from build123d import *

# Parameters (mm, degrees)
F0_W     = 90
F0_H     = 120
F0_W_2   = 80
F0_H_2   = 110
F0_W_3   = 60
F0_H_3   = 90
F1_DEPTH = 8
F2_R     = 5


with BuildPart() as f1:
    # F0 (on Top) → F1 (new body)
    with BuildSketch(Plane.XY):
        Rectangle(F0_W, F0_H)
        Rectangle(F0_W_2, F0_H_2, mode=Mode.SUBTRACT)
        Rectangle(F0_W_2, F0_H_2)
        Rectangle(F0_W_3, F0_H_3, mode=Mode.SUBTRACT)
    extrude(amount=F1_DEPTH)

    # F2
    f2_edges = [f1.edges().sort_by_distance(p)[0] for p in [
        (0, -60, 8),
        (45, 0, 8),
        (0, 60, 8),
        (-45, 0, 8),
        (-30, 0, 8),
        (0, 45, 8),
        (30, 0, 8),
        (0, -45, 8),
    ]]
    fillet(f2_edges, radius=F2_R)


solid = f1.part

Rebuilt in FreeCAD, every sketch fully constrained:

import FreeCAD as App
import Part
import Sketcher


def edges_at(feature, points):
    """Names of the edges that pass closest to the given points."""
    edges = feature.Shape.Edges
    near = lambda p: min(range(len(edges)), key=lambda i: edges[i].distToShape(Part.Vertex(*p))[0])
    return sorted({f"Edge{near(p) + 1}" for p in points})

doc = App.newDocument("Part")
body = doc.addObject("PartDesign::Body", "Body")

# Sketch on XY plane
sketch1 = body.newObject("Sketcher::SketchObject", "Sketch")
sketch1.AttachmentSupport = (doc.getObject("XY_Plane"), [""])
sketch1.MapMode = "FlatFace"
sketch1.addGeometry(Part.LineSegment(App.Vector(-45, 60, 0), App.Vector(-45, -60, 0)), False)
sketch1.addGeometry(Part.LineSegment(App.Vector(-45, -60, 0), App.Vector(45, -60, 0)), False)
sketch1.addGeometry(Part.LineSegment(App.Vector(45, -60, 0), App.Vector(45, 60, 0)), False)
sketch1.addGeometry(Part.LineSegment(App.Vector(45, 60, 0), App.Vector(-45, 60, 0)), False)
sketch1.addGeometry(Part.LineSegment(App.Vector(30, -45, 0), App.Vector(-30, -45, 0)), False)
sketch1.addGeometry(Part.LineSegment(App.Vector(-30, -45, 0), App.Vector(-30, 45, 0)), False)
sketch1.addGeometry(Part.LineSegment(App.Vector(-30, 45, 0), App.Vector(30, 45, 0)), False)
sketch1.addGeometry(Part.LineSegment(App.Vector(30, 45, 0), App.Vector(30, -45, 0)), False)
sketch1.addConstraint(Sketcher.Constraint("Coincident", 0, 2, 1, 1))
sketch1.addConstraint(Sketcher.Constraint("Coincident", 1, 2, 2, 1))
sketch1.addConstraint(Sketcher.Constraint("Coincident", 2, 2, 3, 1))
sketch1.addConstraint(Sketcher.Constraint("Coincident", 3, 2, 0, 1))
sketch1.addConstraint(Sketcher.Constraint("Coincident", 4, 2, 5, 1))
sketch1.addConstraint(Sketcher.Constraint("Coincident", 5, 2, 6, 1))
sketch1.addConstraint(Sketcher.Constraint("Coincident", 6, 2, 7, 1))
sketch1.addConstraint(Sketcher.Constraint("Coincident", 7, 2, 4, 1))
sketch1.addConstraint(Sketcher.Constraint("Vertical", 0))
sketch1.addConstraint(Sketcher.Constraint("Horizontal", 1))
sketch1.addConstraint(Sketcher.Constraint("Vertical", 2))
sketch1.addConstraint(Sketcher.Constraint("Horizontal", 3))
sketch1.addConstraint(Sketcher.Constraint("Horizontal", 4))
sketch1.addConstraint(Sketcher.Constraint("Vertical", 5))
sketch1.addConstraint(Sketcher.Constraint("Horizontal", 6))
sketch1.addConstraint(Sketcher.Constraint("Vertical", 7))
sketch1.addConstraint(Sketcher.Constraint("Symmetric", 0, 2, 2, 2, -1, 1))
sketch1.addConstraint(Sketcher.Constraint("Symmetric", 4, 2, 6, 2, -1, 1))
sketch1.addConstraint(Sketcher.Constraint("Equal", 3, 5))
sketch1.addConstraint(Sketcher.Constraint("DistanceX", 1, 1, 1, 2, 90.0))
sketch1.addConstraint(Sketcher.Constraint("DistanceX", 4, 2, 4, 1, 60.0))
sketch1.addConstraint(Sketcher.Constraint("DistanceY", 0, 2, 0, 1, 120.0))
pad1 = body.newObject("PartDesign::Pad", "Pad")
pad1.Profile = sketch1
pad1.Length = 8
doc.recompute()

fillet = body.newObject("PartDesign::Fillet", "Fillet")
fillet.Base = (pad1, edges_at(pad1, [
    (0, -60, 8),
    (45, 0, 8),
    (0, 60, 8),
    (-45, 0, 8),
    (-30, 0, 8),
    (0, 45, 8),
    (30, 0, 8),
    (0, -45, 8),
]))
fillet.Radius = 5

doc.recompute()
